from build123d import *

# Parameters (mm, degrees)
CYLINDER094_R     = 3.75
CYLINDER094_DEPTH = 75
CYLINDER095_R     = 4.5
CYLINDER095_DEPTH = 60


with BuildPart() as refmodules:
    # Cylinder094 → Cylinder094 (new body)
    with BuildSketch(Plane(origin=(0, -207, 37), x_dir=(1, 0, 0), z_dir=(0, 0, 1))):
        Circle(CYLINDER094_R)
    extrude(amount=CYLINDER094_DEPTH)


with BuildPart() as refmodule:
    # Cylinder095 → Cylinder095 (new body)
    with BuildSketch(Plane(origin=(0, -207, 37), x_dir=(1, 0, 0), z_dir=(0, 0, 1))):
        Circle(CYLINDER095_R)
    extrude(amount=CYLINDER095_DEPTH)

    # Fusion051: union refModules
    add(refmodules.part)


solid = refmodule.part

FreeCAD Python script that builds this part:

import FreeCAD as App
import Part
import Sketcher
from FreeCAD import Vector

doc = App.newDocument("Part")
body = doc.addObject("PartDesign::Body", "Body")

sketch1 = doc.addObject("Sketcher::SketchObject", "Sketch")
body.addObject(sketch1)
sketch1.AttachmentSupport = (doc.XY_Plane, [""])
sketch1.MapMode = "FlatFace"
sketch1.AttachmentOffset = App.Placement(Vector(0, 0, 37), App.Rotation())
sketch1.addGeometry(Part.Circle(Vector(0, -207, 0), Vector(0, 0, 1), 3.8), False)
sketch1.addConstraint(Sketcher.Constraint("PointOnObject", 0, 3, -2))
sketch1.addConstraint(Sketcher.Constraint("Diameter", 0, 7.5))
sketch1.addConstraint(Sketcher.Constraint("DistanceY", 0, 3, -1, 1, 207.0))
pad1 = doc.addObject("PartDesign::Pad", "Pad")
body.addObject(pad1)
pad1.Profile = sketch1
pad1.Length = 75
body2 = doc.addObject("PartDesign::Body", "Body001")

sketch2 = doc.addObject("Sketcher::SketchObject", "Sketch001")
body2.addObject(sketch2)
sketch2.AttachmentSupport = (doc.getObject("XY_Plane001"), [""])
sketch2.MapMode = "FlatFace"
sketch2.AttachmentOffset = App.Placement(Vector(0, 0, 37), App.Rotation())
sketch2.addGeometry(Part.Circle(Vector(0, -207, 0), Vector(0, 0, 1), 4.5), False)
sketch2.addConstraint(Sketcher.Constraint("PointOnObject", 0, 3, -2))
sketch2.addConstraint(Sketcher.Constraint("Diameter", 0, 9.0))
sketch2.addConstraint(Sketcher.Constraint("DistanceY", 0, 3, -1, 1, 207.0))
pad2 = doc.addObject("PartDesign::Pad", "Pad001")
body2.addObject(pad2)
pad2.Profile = sketch2
pad2.Length = 60
doc.recompute()

boolean = doc.addObject("PartDesign::Boolean", "Boolean")
body2.addObject(boolean)
boolean.Type = "Fuse"
boolean.addObjects([body])

doc.recompute()
